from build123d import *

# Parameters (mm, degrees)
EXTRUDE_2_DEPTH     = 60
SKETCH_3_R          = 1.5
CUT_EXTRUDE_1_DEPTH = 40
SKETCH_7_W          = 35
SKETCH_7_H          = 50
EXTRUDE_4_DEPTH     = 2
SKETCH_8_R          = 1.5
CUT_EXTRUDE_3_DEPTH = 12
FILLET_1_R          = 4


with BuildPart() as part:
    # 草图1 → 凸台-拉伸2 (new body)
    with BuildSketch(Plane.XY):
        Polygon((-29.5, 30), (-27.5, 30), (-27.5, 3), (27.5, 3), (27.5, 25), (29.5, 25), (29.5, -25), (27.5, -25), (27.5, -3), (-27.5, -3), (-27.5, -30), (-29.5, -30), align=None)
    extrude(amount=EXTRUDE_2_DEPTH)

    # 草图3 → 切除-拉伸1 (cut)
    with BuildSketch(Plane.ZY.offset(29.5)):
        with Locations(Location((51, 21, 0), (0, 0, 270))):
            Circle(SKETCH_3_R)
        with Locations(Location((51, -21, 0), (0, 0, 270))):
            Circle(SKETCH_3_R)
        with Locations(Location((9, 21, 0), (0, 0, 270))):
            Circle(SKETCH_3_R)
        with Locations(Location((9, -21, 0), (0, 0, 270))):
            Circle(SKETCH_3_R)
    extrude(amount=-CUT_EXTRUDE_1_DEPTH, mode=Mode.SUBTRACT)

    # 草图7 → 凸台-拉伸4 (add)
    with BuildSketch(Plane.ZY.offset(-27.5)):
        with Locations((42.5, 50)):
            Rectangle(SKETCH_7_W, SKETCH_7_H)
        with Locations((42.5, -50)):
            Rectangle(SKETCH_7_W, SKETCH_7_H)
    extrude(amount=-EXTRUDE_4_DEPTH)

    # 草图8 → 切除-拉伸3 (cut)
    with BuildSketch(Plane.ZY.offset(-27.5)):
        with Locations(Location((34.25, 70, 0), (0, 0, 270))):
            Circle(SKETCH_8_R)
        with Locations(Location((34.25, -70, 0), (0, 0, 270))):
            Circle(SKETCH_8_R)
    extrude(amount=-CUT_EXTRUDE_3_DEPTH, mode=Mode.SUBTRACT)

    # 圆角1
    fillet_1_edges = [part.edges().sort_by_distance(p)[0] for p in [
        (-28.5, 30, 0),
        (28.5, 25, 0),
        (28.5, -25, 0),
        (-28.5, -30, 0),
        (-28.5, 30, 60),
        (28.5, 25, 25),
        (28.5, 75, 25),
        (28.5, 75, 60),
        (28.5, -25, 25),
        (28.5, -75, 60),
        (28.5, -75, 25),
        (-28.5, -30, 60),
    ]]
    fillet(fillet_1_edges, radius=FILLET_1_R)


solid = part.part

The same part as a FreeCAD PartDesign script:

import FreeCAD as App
import Part
import Sketcher
from FreeCAD import Vector
Q = App.Units.Quantity


def edges_at(feature, points):
    """Names of the edges that pass closest to the given points."""
    edges = feature.Shape.Edges
    near = lambda p: min(range(len(edges)), key=lambda i: edges[i].distToShape(Part.Vertex(*p))[0])
    return sorted({f"Edge{near(p) + 1}" for p in points})

doc = App.newDocument("Part")
body = doc.addObject("PartDesign::Body", "Body")

sketch1 = body.newObject("Sketcher::SketchObject", "Sketch")
sketch1.AttachmentSupport = (doc.getObject("XY_Plane"), [""])
sketch1.MapMode = "FlatFace"
sketch1.addGeometry([
    Part.LineSegment(Vector(-27.5, 30, 0), Vector(-29.5, 30, 0)),
    Part.LineSegment(Vector(-29.5, 30, 0), Vector(-29.5, -30, 0)),
    Part.LineSegment(Vector(-29.5, -30, 0), Vector(-27.5, -30, 0)),
    Part.LineSegment(Vector(-27.5, -30, 0), Vector(-27.5, -3, 0)),
    Part.LineSegment(Vector(-27.5, -3, 0), Vector(27.5, -3, 0)),
    Part.LineSegment(Vector(27.5, -3, 0), Vector(27.5, -25, 0)),
    Part.LineSegment(Vector(27.5, -25, 0), Vector(29.5, -25, 0)),
    Part.LineSegment(Vector(29.5, -25, 0), Vector(29.5, 25, 0)),
    Part.LineSegment(Vector(29.5, 25, 0), Vector(27.5, 25, 0)),
    Part.LineSegment(Vector(27.5, 25, 0), Vector(27.5, 3, 0)),
    Part.LineSegment(Vector(27.5, 3, 0), Vector(-27.5, 3, 0)),
    Part.LineSegment(Vector(-27.5, 3, 0), Vector(-27.5, 30, 0)),
], False)
sketch1.addConstraint([
    Sketcher.Constraint("Coincident", 0, 2, 1, 1),
    Sketcher.Constraint("Coincident", 1, 2, 2, 1),
    Sketcher.Constraint("Coincident", 2, 2, 3, 1),
    Sketcher.Constraint("Coincident", 3, 2, 4, 1),
    Sketcher.Constraint("Coincident", 4, 2, 5, 1),
    Sketcher.Constraint("Coincident", 5, 2, 6, 1),
    Sketcher.Constraint("Coincident", 6, 2, 7, 1),
    Sketcher.Constraint("Coincident", 7, 2, 8, 1),
    Sketcher.Constraint("Coincident", 8, 2, 9, 1),
    Sketcher.Constraint("Coincident", 9, 2, 10, 1),
    Sketcher.Constraint("Coincident", 10, 2, 11, 1),
    Sketcher.Constraint("Coincident", 11, 2, 0, 1),
    Sketcher.Constraint("Horizontal", 0),
    Sketcher.Constraint("Vertical", 1),
    Sketcher.Constraint("Horizontal", 2),
    Sketcher.Constraint("Vertical", 3),
    Sketcher.Constraint("Horizontal", 4),
    Sketcher.Constraint("Vertical", 5),
    Sketcher.Constraint("Horizontal", 6),
    Sketcher.Constraint("Vertical", 7),
    Sketcher.Constraint("Horizontal", 8),
    Sketcher.Constraint("Vertical", 9),
    Sketcher.Constraint("Horizontal", 10),
    Sketcher.Constraint("Vertical", 11),
    Sketcher.Constraint("Symmetric", 3, 2, 9, 2, -1, 1),
    Sketcher.Constraint("Symmetric", 5, 2, 8, 2, -1),
    Sketcher.Constraint("Symmetric", 2, 2, 11, 2, -1),
    Sketcher.Constraint("Equal", 2, 6),
    Sketcher.Constraint("DistanceX", 0, 2, 0, 1, Q("2 mm")),
    Sketcher.Constraint("DistanceX", 4, 1, 4, 2, Q("55 mm")),
    Sketcher.Constraint("DistanceY", 1, 2, 1, 1, Q("60 mm")),
    Sketcher.Constraint("DistanceY", 3, 1, 3, 2, Q("27 mm")),
    Sketcher.Constraint("DistanceY", 5, 2, 5, 1, Q("22 mm")),
])
pad1 = body.newObject("PartDesign::Pad", "Pad")
pad1.Profile = sketch1
pad1.Length = 60

sketch2 = body.newObject("Sketcher::SketchObject", "Sketch001")
sketch2.AttachmentSupport = (doc.getObject("YZ_Plane"), [""])
sketch2.MapMode = "FlatFace"
sketch2.AttachmentOffset = App.Placement(Vector(0, 0, -29.5), App.Rotation())
sketch2.addGeometry([
    Part.Circle(Vector(21, 51, 0), Vector(0, 0, 1), 1.5),
    Part.Circle(Vector(-21, 51, 0), Vector(0, 0, 1), 1.5),
    Part.Circle(Vector(21, 9, 0), Vector(0, 0, 1), 1.5),
    Part.Circle(Vector(-21, 9, 0), Vector(0, 0, 1), 1.5),
], False)
sketch2.addConstraint([
    Sketcher.Constraint("Equal", 0, 1),
    Sketcher.Constraint("Equal", 1, 2),
    Sketcher.Constraint("Equal", 2, 3),
    Sketcher.Constraint("Symmetric", 0, 3, 1, 3, -2),
    Sketcher.Constraint("Symmetric", 2, 3, 3, 3, -2),
    Sketcher.Constraint("Vertical", 0, 3, 2, 3),
    Sketcher.Constraint("Diameter", 0, Q("3 mm")),
    Sketcher.Constraint("DistanceX", -1, 1, 0, 3, Q("21 mm")),
    Sketcher.Constraint("DistanceY", -1, 1, 0, 3, Q("51 mm")),
    Sketcher.Constraint("DistanceY", -1, 1, 2, 3, Q("9 mm")),
])
pocket1 = body.newObject("PartDesign::Pocket", "Pocket")
pocket1.Profile = sketch2
pocket1.Length = 40
pocket1.Reversed = True

sketch3 = body.newObject("Sketcher::SketchObject", "Sketch002")
sketch3.AttachmentSupport = (doc.getObject("YZ_Plane"), [""])
sketch3.MapMode = "FlatFace"
sketch3.AttachmentOffset = App.Placement(Vector(0, 0, 27.5), App.Rotation())
sketch3.addGeometry([
    Part.LineSegment(Vector(75, 25, 0), Vector(25, 25, 0)),
    Part.LineSegment(Vector(25, 25, 0), Vector(25, 60, 0)),
    Part.LineSegment(Vector(25, 60, 0), Vector(75, 60, 0)),
    Part.LineSegment(Vector(75, 60, 0), Vector(75, 25, 0)),
    Part.LineSegment(Vector(-25, 25, 0), Vector(-75, 25, 0)),
    Part.LineSegment(Vector(-75, 25, 0), Vector(-75, 60, 0)),
    Part.LineSegment(Vector(-75, 60, 0), Vector(-25, 60, 0)),
    Part.LineSegment(Vector(-25, 60, 0), Vector(-25, 25, 0)),
], False)
sketch3.addConstraint([
    Sketcher.Constraint("Coincident", 0, 2, 1, 1),
    Sketcher.Constraint("Coincident", 1, 2, 2, 1),
    Sketcher.Constraint("Coincident", 2, 2, 3, 1),
    Sketcher.Constraint("Coincident", 3, 2, 0, 1),
    Sketcher.Constraint("Coincident", 4, 2, 5, 1),
    Sketcher.Constraint("Coincident", 5, 2, 6, 1),
    Sketcher.Constraint("Coincident", 6, 2, 7, 1),
    Sketcher.Constraint("Coincident", 7, 2, 4, 1),
    Sketcher.Constraint("Horizontal", 0),
    Sketcher.Constraint("Vertical", 1),
    Sketcher.Constraint("Horizontal", 2),
    Sketcher.Constraint("Vertical", 3),
    Sketcher.Constraint("Horizontal", 4),
    Sketcher.Constraint("Vertical", 5),
    Sketcher.Constraint("Horizontal", 6),
    Sketcher.Constraint("Vertical", 7),
    Sketcher.Constraint("Symmetric", 3, 2, 4, 2, -2),
    Sketcher.Constraint("Symmetric", 1, 2, 6, 2, -2),
    Sketcher.Constraint("DistanceX", 0, 2, 0, 1, Q("50 mm")),
    Sketcher.Constraint("DistanceY", 1, 1, 1, 2, Q("35 mm")),
    Sketcher.Constraint("DistanceX", -1, 1, 0, 2, Q("25 mm")),
    Sketcher.Constraint("DistanceY", -1, 1, 0, 2, Q("25 mm")),
])
pad2 = body.newObject("PartDesign::Pad", "Pad001")
pad2.Profile = sketch3
pad2.Length = 2

sketch4 = body.newObject("Sketcher::SketchObject", "Sketch003")
sketch4.AttachmentSupport = (doc.getObject("YZ_Plane"), [""])
sketch4.MapMode = "FlatFace"
sketch4.AttachmentOffset = App.Placement(Vector(0, 0, 27.5), App.Rotation())
sketch4.addGeometry([
    Part.Circle(Vector(70, 34.25, 0), Vector(0, 0, 1), 1.5),
    Part.Circle(Vector(-70, 34.25, 0), Vector(0, 0, 1), 1.5),
], False)
sketch4.addConstraint([
    Sketcher.Constraint("Equal", 0, 1),
    Sketcher.Constraint("Symmetric", 0, 3, 1, 3, -2),
    Sketcher.Constraint("Diameter", 0, Q("3 mm")),
    Sketcher.Constraint("DistanceX", -1, 1, 0, 3, Q("70 mm")),
    Sketcher.Constraint("DistanceY", -1, 1, 0, 3, Q("34.25 mm")),
])
pocket2 = body.newObject("PartDesign::Pocket", "Pocket001")
pocket2.Profile = sketch4
pocket2.Length = 12
pocket2.Reversed = True
doc.recompute()

fillet = body.newObject("PartDesign::Fillet", "Fillet")
fillet.Base = (pocket2, edges_at(pocket2, [
    (-28.5, 30, 0),
    (28.5, 25, 0),
    (28.5, -25, 0),
    (-28.5, -30, 0),
    (-28.5, 30, 60),
    (28.5, 25, 25),
    (28.5, 75, 25),
    (28.5, 75, 60),
    (28.5, -25, 25),
    (28.5, -75, 60),
    (28.5, -75, 25),
    (-28.5, -30, 60),
]))
fillet.Radius = 4

doc.recompute()
